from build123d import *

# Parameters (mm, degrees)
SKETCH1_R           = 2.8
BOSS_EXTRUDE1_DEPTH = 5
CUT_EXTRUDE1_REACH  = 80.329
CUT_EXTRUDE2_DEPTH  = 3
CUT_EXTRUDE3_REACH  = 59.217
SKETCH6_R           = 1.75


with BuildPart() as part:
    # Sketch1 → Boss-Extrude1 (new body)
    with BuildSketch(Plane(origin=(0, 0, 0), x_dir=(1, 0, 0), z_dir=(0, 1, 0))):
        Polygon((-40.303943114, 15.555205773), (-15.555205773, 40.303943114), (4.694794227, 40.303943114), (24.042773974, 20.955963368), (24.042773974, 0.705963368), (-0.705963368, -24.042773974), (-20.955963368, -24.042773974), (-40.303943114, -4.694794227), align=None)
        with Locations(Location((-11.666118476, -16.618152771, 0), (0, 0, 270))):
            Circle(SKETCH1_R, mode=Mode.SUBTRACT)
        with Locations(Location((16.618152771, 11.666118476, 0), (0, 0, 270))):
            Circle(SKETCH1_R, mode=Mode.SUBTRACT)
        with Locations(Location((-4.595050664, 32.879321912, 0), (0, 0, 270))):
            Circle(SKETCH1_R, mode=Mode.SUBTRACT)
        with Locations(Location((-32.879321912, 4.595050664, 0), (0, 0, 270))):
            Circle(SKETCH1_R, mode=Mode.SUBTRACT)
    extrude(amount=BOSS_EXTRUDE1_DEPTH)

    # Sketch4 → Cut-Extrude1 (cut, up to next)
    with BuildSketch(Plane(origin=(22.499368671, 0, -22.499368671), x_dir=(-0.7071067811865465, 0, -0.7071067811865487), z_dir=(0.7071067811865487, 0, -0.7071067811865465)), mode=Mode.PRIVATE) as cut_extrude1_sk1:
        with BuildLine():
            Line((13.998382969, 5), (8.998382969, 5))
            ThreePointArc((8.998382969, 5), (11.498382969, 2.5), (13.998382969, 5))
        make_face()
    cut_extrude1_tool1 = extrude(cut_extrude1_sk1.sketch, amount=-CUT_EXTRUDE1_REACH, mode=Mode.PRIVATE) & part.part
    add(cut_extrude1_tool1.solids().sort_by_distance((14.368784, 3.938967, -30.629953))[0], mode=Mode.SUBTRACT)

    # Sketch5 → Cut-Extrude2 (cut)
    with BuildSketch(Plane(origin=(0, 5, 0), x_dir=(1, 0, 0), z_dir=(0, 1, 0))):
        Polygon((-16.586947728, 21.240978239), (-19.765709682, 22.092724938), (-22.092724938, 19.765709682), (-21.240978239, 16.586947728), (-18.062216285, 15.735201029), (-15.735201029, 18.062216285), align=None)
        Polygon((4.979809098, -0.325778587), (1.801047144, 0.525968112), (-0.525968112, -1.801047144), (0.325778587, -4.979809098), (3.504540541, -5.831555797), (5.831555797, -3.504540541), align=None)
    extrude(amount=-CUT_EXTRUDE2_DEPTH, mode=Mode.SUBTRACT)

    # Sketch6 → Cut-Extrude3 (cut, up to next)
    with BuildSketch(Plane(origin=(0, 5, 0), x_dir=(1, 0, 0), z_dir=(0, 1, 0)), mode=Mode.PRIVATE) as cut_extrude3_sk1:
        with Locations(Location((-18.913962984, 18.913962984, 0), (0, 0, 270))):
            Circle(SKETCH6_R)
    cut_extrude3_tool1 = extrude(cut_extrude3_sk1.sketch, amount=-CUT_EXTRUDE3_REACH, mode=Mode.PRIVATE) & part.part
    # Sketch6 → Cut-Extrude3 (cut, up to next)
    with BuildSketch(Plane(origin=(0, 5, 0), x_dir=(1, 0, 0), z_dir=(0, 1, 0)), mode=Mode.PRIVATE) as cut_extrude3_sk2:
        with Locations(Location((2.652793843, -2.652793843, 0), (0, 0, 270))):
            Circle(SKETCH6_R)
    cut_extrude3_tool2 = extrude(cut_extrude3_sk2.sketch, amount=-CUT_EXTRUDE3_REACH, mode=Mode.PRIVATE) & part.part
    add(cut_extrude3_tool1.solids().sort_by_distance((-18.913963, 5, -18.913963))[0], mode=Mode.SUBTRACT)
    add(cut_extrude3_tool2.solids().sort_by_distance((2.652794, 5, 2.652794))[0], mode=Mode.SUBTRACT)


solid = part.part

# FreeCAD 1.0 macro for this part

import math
import FreeCAD as App
import Part
import Sketcher

V = App.Vector
Q = App.Units.Quantity


def add_polygon(sketch, points):
    """Adds a closed chain of lines whose ends are joined by coincident constraints."""
    first, n = sketch.GeometryCount, len(points)
    for a, b in zip(points, points[1:] + points[:1]):
        sketch.addGeometry(Part.LineSegment(App.Vector(*a, 0), App.Vector(*b, 0)), False)
    for i in range(n):
        sketch.addConstraint(Sketcher.Constraint("Coincident", first + i, 2, first + (i + 1) % n, 1))

doc = App.newDocument("Part")
body = doc.addObject("PartDesign::Body", "Body")

sketch1 = body.newObject("Sketcher::SketchObject", "Sketch")
sketch1.AttachmentSupport = (doc.getObject("XZ_Plane"), [""])
sketch1.MapMode = "FlatFace"
add_polygon(sketch1, [(-15.6, -40.3), (-40.3, -15.6), (-40.3, 4.7), (-21, 24), (-0.7, 24), (24, -0.7), (24, -21), (4.7, -40.3)])
sketch1.addGeometry(Part.Circle(V(-11.7, 16.6, 0), V(0, 0, 1), 2.8), False)
sketch1.addGeometry(Part.Circle(V(-32.9, -4.6, 0), V(0, 0, 1), 2.8), False)
sketch1.addGeometry(Part.Circle(V(16.6, -11.7, 0), V(0, 0, 1), 2.8), False)
sketch1.addGeometry(Part.Circle(V(-4.6, -32.9, 0), V(0, 0, 1), 2.8), False)
sketch1.addConstraint(Sketcher.Constraint("Vertical", 1))
sketch1.addConstraint(Sketcher.Constraint("Horizontal", 3))
sketch1.addConstraint(Sketcher.Constraint("Vertical", 5))
sketch1.addConstraint(Sketcher.Constraint("Horizontal", 7))
sketch1.addConstraint(Sketcher.Constraint("Equal", 8, 9))
sketch1.addConstraint(Sketcher.Constraint("Equal", 9, 10))
sketch1.addConstraint(Sketcher.Constraint("Equal", 10, 11))
sketch1.addConstraint(Sketcher.Constraint("Perpendicular", 0, 2))
sketch1.addConstraint(Sketcher.Constraint("Perpendicular", 2, 4))
sketch1.addConstraint(Sketcher.Constraint("Perpendicular", 4, 6))
sketch1.addConstraint(Sketcher.Constraint("Equal", 3, 7))
sketch1.addConstraint(Sketcher.Constraint("Equal", 7, 1))
sketch1.addConstraint(Sketcher.Constraint("Equal", 1, 5))
sketch1.addConstraint(Sketcher.Constraint("Diameter", 8, Q("5.6 mm")))
sketch1.addConstraint(Sketcher.Constraint("Angle", 0, Q("135 deg")))
sketch1.addConstraint(Sketcher.Constraint("Distance", 0, Q("35 mm")))
sketch1.addConstraint(Sketcher.Constraint("DistanceX", 3, 1, 3, 2, Q("20.25 mm")))
sketch1.addConstraint(Sketcher.Constraint("DistanceX", 8, 3, -1, 1, Q("11.666118 mm")))
sketch1.addConstraint(Sketcher.Constraint("DistanceX", 9, 3, -1, 1, Q("32.879322 mm")))
sketch1.addConstraint(Sketcher.Constraint("DistanceY", 9, 3, -1, 1, Q("4.595051 mm")))
sketch1.addConstraint(Sketcher.Constraint("DistanceY", 10, 3, -1, 1, Q("11.666118 mm")))
sketch1.addConstraint(Sketcher.Constraint("DistanceX", 11, 3, -1, 1, Q("4.595051 mm")))
sketch1.addConstraint(Sketcher.Constraint("DistanceY", 11, 3, -1, 1, Q("32.879322 mm")))
sketch1.addConstraint(Sketcher.Constraint("DistanceX", 8, 3, 10, 3, Q("28.284271 mm")))
sketch1.addConstraint(Sketcher.Constraint("DistanceY", 10, 3, 8, 3, Q("28.284271 mm")))
sketch1.addConstraint(Sketcher.Constraint("DistanceX", 0, 2, 9, 3, Q("7.424621 mm")))
sketch1.addConstraint(Sketcher.Constraint("DistanceY", 0, 2, 8, 3, Q("32.173359 mm")))
sketch1.addConstraint(Sketcher.Constraint("DistanceY", 8, 3, 2, 2, Q("7.424621 mm")))
pad1 = body.newObject("PartDesign::Pad", "Pad")
pad1.Profile = sketch1
pad1.Length = 5
pad1.Reversed = True

sketch2 = body.newObject("Sketcher::SketchObject", "Sketch001")
sketch2.Placement = App.Placement(V(22.499369, 0, -22.499369), App.Rotation(V(-0.707106781, 0, -0.707106781), V(0, 0.999999999, 0), V(0.707106781, 0, -0.707106781), "ZXY"))
sketch2.addGeometry(Part.LineSegment(V(14, 5, 0), V(9, 5, 0)), False)
sketch2.addGeometry(Part.ArcOfCircle(Part.Circle(V(11.5, 5, 0), V(0, 0, 1), 2.5), math.radians(180), math.radians(360)), False)
sketch2.addConstraint(Sketcher.Constraint("Coincident", 0, 1, 1, 2))
sketch2.addConstraint(Sketcher.Constraint("Coincident", 1, 1, 0, 2))
sketch2.addConstraint(Sketcher.Constraint("Horizontal", 0))
sketch2.addConstraint(Sketcher.Constraint("Horizontal", 1, 3, 0, 1))
sketch2.addConstraint(Sketcher.Constraint("Radius", 1, Q("2.5 mm")))
sketch2.addConstraint(Sketcher.Constraint("DistanceY", -1, 1, 1, 3, Q("5 mm")))
sketch2.addConstraint(Sketcher.Constraint("DistanceX", -1, 1, 1, 3, Q("11.498383 mm")))
pocket1 = body.newObject("PartDesign::Pocket", "Pocket")
pocket1.Profile = sketch2
pocket1.Type = "UpToFirst"

sketch3 = body.newObject("Sketcher::SketchObject", "Sketch002")
sketch3.AttachmentSupport = (doc.getObject("XZ_Plane"), [""])
sketch3.MapMode = "FlatFace"
sketch3.AttachmentOffset = App.Placement(V(0, 0, -5), App.Rotation())
add_polygon(sketch3, [(-16.6, -21.2), (-19.8, -22.1), (-22.1, -19.8), (-21.2, -16.6), (-18.1, -15.7), (-15.7, -18.1)])
add_polygon(sketch3, [(5, 0.3), (1.8, -0.5), (-0.5, 1.8), (0.3, 5), (3.5, 5.8), (5.8, 3.5)])
sketch3.addConstraint(Sketcher.Constraint("Parallel", 0, 3))
sketch3.addConstraint(Sketcher.Constraint("Parallel", 1, 4))
sketch3.addConstraint(Sketcher.Constraint("Parallel", 2, 5))
sketch3.addConstraint(Sketcher.Constraint("Parallel", 3, 6))
sketch3.addConstraint(Sketcher.Constraint("Parallel", 4, 7))
sketch3.addConstraint(Sketcher.Constraint("Parallel", 5, 8))
sketch3.addConstraint(Sketcher.Constraint("Parallel", 6, 9))
sketch3.addConstraint(Sketcher.Constraint("Parallel", 7, 10))
sketch3.addConstraint(Sketcher.Constraint("Parallel", 8, 11))
sketch3.addConstraint(Sketcher.Constraint("Equal", 0, 1))
sketch3.addConstraint(Sketcher.Constraint("Equal", 1, 2))
sketch3.addConstraint(Sketcher.Constraint("Equal", 2, 3))
sketch3.addConstraint(Sketcher.Constraint("Equal", 5, 6))
sketch3.addConstraint(Sketcher.Constraint("Equal", 6, 7))
sketch3.addConstraint(Sketcher.Constraint("Equal", 7, 8))
sketch3.addConstraint(Sketcher.Constraint("Equal", 8, 9))
sketch3.addConstraint(Sketcher.Constraint("Angle", 0, Q("-165 deg")))
sketch3.addConstraint(Sketcher.Constraint("Angle", 1, Q("135 deg")))
sketch3.addConstraint(Sketcher.Constraint("Angle", 2, Q("75 deg")))
sketch3.addConstraint(Sketcher.Constraint("DistanceY", 3, 2, -1, 1, Q("15.735201 mm")))
sketch3.addConstraint(Sketcher.Constraint("DistanceX", 4, 2, -1, 1, Q("15.735201 mm")))
sketch3.addConstraint(Sketcher.Constraint("DistanceX", 0, 2, -1, 1, Q("19.76571 mm")))
sketch3.addConstraint(Sketcher.Constraint("DistanceY", 6, 2, -1, 1, Q("0.525968 mm")))
sketch3.addConstraint(Sketcher.Constraint("DistanceX", 7, 2, -1, 1, Q("0.525968 mm")))
pocket2 = body.newObject("PartDesign::Pocket", "Pocket001")
pocket2.Profile = sketch3
pocket2.Length = 3
pocket2.Reversed = True

sketch4 = body.newObject("Sketcher::SketchObject", "Sketch003")
sketch4.AttachmentSupport = (doc.getObject("XZ_Plane"), [""])
sketch4.MapMode = "FlatFace"
sketch4.AttachmentOffset = App.Placement(V(0, 0, -5), App.Rotation())
sketch4.addGeometry(Part.Circle(V(-18.9, -18.9, 0), V(0, 0, 1), 1.8), False)
sketch4.addConstraint(Sketcher.Constraint("Diameter", 0, Q("3.5 mm")))
sketch4.addConstraint(Sketcher.Constraint("DistanceX", 0, 3, -1, 1, Q("18.913963 mm")))
sketch4.addConstraint(Sketcher.Constraint("DistanceY", 0, 3, -1, 1, Q("18.913963 mm")))
pocket3 = body.newObject("PartDesign::Pocket", "Pocket002")
pocket3.Profile = sketch4
pocket3.Length = 5
pocket3.Reversed = True

sketch5 = body.newObject("Sketcher::SketchObject", "Sketch004")
sketch5.AttachmentSupport = (doc.getObject("XZ_Plane"), [""])
sketch5.MapMode = "FlatFace"
sketch5.AttachmentOffset = App.Placement(V(0, 0, -5), App.Rotation())
sketch5.addGeometry(Part.Circle(V(2.7, 2.7, 0), V(0, 0, 1), 1.8), False)
sketch5.addConstraint(Sketcher.Constraint("Diameter", 0, Q("3.5 mm")))
sketch5.addConstraint(Sketcher.Constraint("DistanceX", -1, 1, 0, 3, Q("2.652794 mm")))
sketch5.addConstraint(Sketcher.Constraint("DistanceY", -1, 1, 0, 3, Q("2.652794 mm")))
pocket4 = body.newObject("PartDesign::Pocket", "Pocket003")
pocket4.Profile = sketch5
pocket4.Length = 5
pocket4.Reversed = True

doc.recompute()
